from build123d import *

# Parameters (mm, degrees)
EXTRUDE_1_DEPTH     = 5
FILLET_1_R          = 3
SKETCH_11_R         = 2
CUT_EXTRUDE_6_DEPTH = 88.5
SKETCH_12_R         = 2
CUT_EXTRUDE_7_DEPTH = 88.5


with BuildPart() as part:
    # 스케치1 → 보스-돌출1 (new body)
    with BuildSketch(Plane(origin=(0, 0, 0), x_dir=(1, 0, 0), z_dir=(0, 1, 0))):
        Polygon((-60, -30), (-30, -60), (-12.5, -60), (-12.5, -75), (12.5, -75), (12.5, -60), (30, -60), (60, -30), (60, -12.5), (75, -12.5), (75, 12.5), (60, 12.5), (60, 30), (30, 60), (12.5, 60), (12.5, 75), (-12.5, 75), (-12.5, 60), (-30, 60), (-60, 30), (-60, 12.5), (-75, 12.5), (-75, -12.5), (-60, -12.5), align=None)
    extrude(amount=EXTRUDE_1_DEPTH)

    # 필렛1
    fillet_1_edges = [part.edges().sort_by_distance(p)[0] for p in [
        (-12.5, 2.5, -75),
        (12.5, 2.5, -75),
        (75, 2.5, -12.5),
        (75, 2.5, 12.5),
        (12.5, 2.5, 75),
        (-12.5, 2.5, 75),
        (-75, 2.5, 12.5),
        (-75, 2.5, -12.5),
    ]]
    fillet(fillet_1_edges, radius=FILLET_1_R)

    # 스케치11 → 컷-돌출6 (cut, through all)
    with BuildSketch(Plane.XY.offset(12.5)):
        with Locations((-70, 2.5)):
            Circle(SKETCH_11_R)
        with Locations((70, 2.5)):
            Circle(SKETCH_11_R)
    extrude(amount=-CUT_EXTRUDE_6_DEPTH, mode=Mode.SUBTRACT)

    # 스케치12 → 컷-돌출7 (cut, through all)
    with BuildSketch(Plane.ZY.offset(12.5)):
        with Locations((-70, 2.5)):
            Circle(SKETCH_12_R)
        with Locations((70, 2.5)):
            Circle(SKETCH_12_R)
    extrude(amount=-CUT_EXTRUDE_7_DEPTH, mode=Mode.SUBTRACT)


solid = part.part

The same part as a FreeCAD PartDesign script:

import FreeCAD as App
import Part
import Sketcher


def edges_at(feature, points):
    """Names of the edges that pass closest to the given points."""
    edges = feature.Shape.Edges
    near = lambda p: min(range(len(edges)), key=lambda i: edges[i].distToShape(Part.Vertex(*p))[0])
    return sorted({f"Edge{near(p) + 1}" for p in points})

doc = App.newDocument("Part")
body = doc.addObject("PartDesign::Body", "Body")

sketch1 = body.newObject("Sketcher::SketchObject", "Sketch")
sketch1.AttachmentSupport = (doc.getObject("XZ_Plane"), [""])
sketch1.MapMode = "FlatFace"
sketch1.addGeometry([
    Part.LineSegment(App.Vector(-60, 30, 0), App.Vector(-30, 60, 0)),
    Part.LineSegment(App.Vector(-30, 60, 0), App.Vector(-12, 60, 0)),
    Part.LineSegment(App.Vector(-12, 60, 0), App.Vector(-12, 75, 0)),
    Part.LineSegment(App.Vector(-12, 75, 0), App.Vector(12, 75, 0)),
    Part.LineSegment(App.Vector(12, 75, 0), App.Vector(12, 60, 0)),
    Part.LineSegment(App.Vector(12, 60, 0), App.Vector(30, 60, 0)),
    Part.LineSegment(App.Vector(30, 60, 0), App.Vector(60, 30, 0)),
    Part.LineSegment(App.Vector(60, 30, 0), App.Vector(60, 12, 0)),
    Part.LineSegment(App.Vector(60, 12, 0), App.Vector(75, 12, 0)),
    Part.LineSegment(App.Vector(75, 12, 0), App.Vector(75, -12, 0)),
    Part.LineSegment(App.Vector(75, -12, 0), App.Vector(60, -12, 0)),
    Part.LineSegment(App.Vector(60, -12, 0), App.Vector(60, -30, 0)),
    Part.LineSegment(App.Vector(60, -30, 0), App.Vector(30, -60, 0)),
    Part.LineSegment(App.Vector(30, -60, 0), App.Vector(12, -60, 0)),
    Part.LineSegment(App.Vector(12, -60, 0), App.Vector(12, -75, 0)),
    Part.LineSegment(App.Vector(12, -75, 0), App.Vector(-12, -75, 0)),
    Part.LineSegment(App.Vector(-12, -75, 0), App.Vector(-12, -60, 0)),
    Part.LineSegment(App.Vector(-12, -60, 0), App.Vector(-30, -60, 0)),
    Part.LineSegment(App.Vector(-30, -60, 0), App.Vector(-60, -30, 0)),
    Part.LineSegment(App.Vector(-60, -30, 0), App.Vector(-60, -12, 0)),
    Part.LineSegment(App.Vector(-60, -12, 0), App.Vector(-75, -12, 0)),
    Part.LineSegment(App.Vector(-75, -12, 0), App.Vector(-75, 12, 0)),
    Part.LineSegment(App.Vector(-75, 12, 0), App.Vector(-60, 12, 0)),
    Part.LineSegment(App.Vector(-60, 12, 0), App.Vector(-60, 30, 0)),
], False)
sketch1.addConstraint([
    Sketcher.Constraint("Coincident", 0, 2, 1, 1),
    Sketcher.Constraint("Coincident", 1, 2, 2, 1),
    Sketcher.Constraint("Coincident", 2, 2, 3, 1),
    Sketcher.Constraint("Coincident", 3, 2, 4, 1),
    Sketcher.Constraint("Coincident", 4, 2, 5, 1),
    Sketcher.Constraint("Coincident", 5, 2, 6, 1),
    Sketcher.Constraint("Coincident", 6, 2, 7, 1),
    Sketcher.Constraint("Coincident", 7, 2, 8, 1),
    Sketcher.Constraint("Coincident", 8, 2, 9, 1),
    Sketcher.Constraint("Coincident", 9, 2, 10, 1),
    Sketcher.Constraint("Coincident", 10, 2, 11, 1),
    Sketcher.Constraint("Coincident", 11, 2, 12, 1),
    Sketcher.Constraint("Coincident", 12, 2, 13, 1),
    Sketcher.Constraint("Coincident", 13, 2, 14, 1),
    Sketcher.Constraint("Coincident", 14, 2, 15, 1),
    Sketcher.Constraint("Coincident", 15, 2, 16, 1),
    Sketcher.Constraint("Coincident", 16, 2, 17, 1),
    Sketcher.Constraint("Coincident", 17, 2, 18, 1),
    Sketcher.Constraint("Coincident", 18, 2, 19, 1),
    Sketcher.Constraint("Coincident", 19, 2, 20, 1),
    Sketcher.Constraint("Coincident", 20, 2, 21, 1),
    Sketcher.Constraint("Coincident", 21, 2, 22, 1),
    Sketcher.Constraint("Coincident", 22, 2, 23, 1),
    Sketcher.Constraint("Coincident", 23, 2, 0, 1),
    Sketcher.Constraint("Horizontal", 1),
    Sketcher.Constraint("Vertical", 2),
    Sketcher.Constraint("Horizontal", 3),
    Sketcher.Constraint("Vertical", 4),
    Sketcher.Constraint("Horizontal", 5),
    Sketcher.Constraint("Vertical", 7),
    Sketcher.Constraint("Horizontal", 8),
    Sketcher.Constraint("Vertical", 9),
    Sketcher.Constraint("Horizontal", 10),
    Sketcher.Constraint("Vertical", 11),
    Sketcher.Constraint("Horizontal", 13),
    Sketcher.Constraint("Vertical", 14),
    Sketcher.Constraint("Horizontal", 15),
    Sketcher.Constraint("Vertical", 16),
    Sketcher.Constraint("Horizontal", 17),
    Sketcher.Constraint("Vertical", 19),
    Sketcher.Constraint("Horizontal", 20),
    Sketcher.Constraint("Vertical", 21),
    Sketcher.Constraint("Horizontal", 22),
    Sketcher.Constraint("Vertical", 23),
    Sketcher.Constraint("Symmetric", 0, 2, 12, 2, -1, 1),
    Sketcher.Constraint("Symmetric", 2, 2, 14, 2, -1, 1),
    Sketcher.Constraint("Symmetric", 4, 2, 16, 2, -1, 1),
    Sketcher.Constraint("Symmetric", 6, 2, 18, 2, -1, 1),
    Sketcher.Constraint("Symmetric", 8, 2, 20, 2, -1, 1),
    Sketcher.Constraint("Symmetric", 10, 2, 22, 2, -1, 1),
    Sketcher.Constraint("Symmetric", 1, 2, 4, 2, -2),
    Sketcher.Constraint("Symmetric", 11, 2, 18, 2, -2),
    Sketcher.Constraint("Perpendicular", 0, 6),
    Sketcher.Constraint("Perpendicular", 6, 12),
    Sketcher.Constraint("Perpendicular", 12, 18),
    Sketcher.Constraint("Horizontal", 10, 2, 19, 2),
    Sketcher.Constraint("Vertical", 5, 2, 12, 2),
    Sketcher.Constraint("Equal", 22, 2),
    Sketcher.Constraint("Equal", 17, 7),
    Sketcher.Constraint("Equal", 15, 9),
    Sketcher.Constraint("DistanceX", 3, 1, 3, 2, 25.0),
    Sketcher.Constraint("DistanceX", 8, 1, 8, 2, 15.0),
    Sketcher.Constraint("DistanceX", 1, 1, 1, 2, 17.5),
    Sketcher.Constraint("DistanceY", -1, 1, 0, 2, 60.0),
])
pad1 = body.newObject("PartDesign::Pad", "Pad")
pad1.Profile = sketch1
pad1.Length = 5
pad1.Reversed = True
doc.recompute()

fillet = body.newObject("PartDesign::Fillet", "Fillet")
fillet.Base = (pad1, edges_at(pad1, [
    (-12.5, 2.5, -75),
    (12.5, 2.5, -75),
    (75, 2.5, -12.5),
    (75, 2.5, 12.5),
    (12.5, 2.5, 75),
    (-12.5, 2.5, 75),
    (-75, 2.5, 12.5),
    (-75, 2.5, -12.5),
]))
fillet.Radius = 3

sketch2 = body.newObject("Sketcher::SketchObject", "Sketch001")
sketch2.AttachmentSupport = (doc.getObject("XY_Plane"), [""])
sketch2.MapMode = "FlatFace"
sketch2.AttachmentOffset = App.Placement(App.Vector(0, 0, 12.5), App.Rotation())
sketch2.addGeometry([
    Part.Circle(App.Vector(-70, 2.5, 0), App.Vector(0, 0, 1), 2),
    Part.Circle(App.Vector(70, 2.5, 0), App.Vector(0, 0, 1), 2),
], False)
sketch2.addConstraint([
    Sketcher.Constraint("Equal", 0, 1),
    Sketcher.Constraint("Symmetric", 0, 3, 1, 3, -2),
    Sketcher.Constraint("Diameter", 0, 4.0),
    Sketcher.Constraint("DistanceX", 0, 3, -1, 1, 70.0),
    Sketcher.Constraint("DistanceY", -1, 1, 0, 3, 2.5),
])
pocket1 = body.newObject("PartDesign::Pocket", "Pocket")
pocket1.Profile = sketch2
pocket1.Type = "ThroughAll"

sketch3 = body.newObject("Sketcher::SketchObject", "Sketch002")
sketch3.AttachmentSupport = (doc.getObject("YZ_Plane"), [""])
sketch3.MapMode = "FlatFace"
sketch3.AttachmentOffset = App.Placement(App.Vector(0, 0, -12.5), App.Rotation())
sketch3.addGeometry([
    Part.Circle(App.Vector(2.5, -70, 0), App.Vector(0, 0, 1), 2),
    Part.Circle(App.Vector(2.5, 70, 0), App.Vector(0, 0, 1), 2),
], False)
sketch3.addConstraint([
    Sketcher.Constraint("Equal", 0, 1),
    Sketcher.Constraint("Symmetric", 0, 3, 1, 3, -1),
    Sketcher.Constraint("Diameter", 0, 4.0),
    Sketcher.Constraint("DistanceY", 0, 3, -1, 1, 70.0),
    Sketcher.Constraint("DistanceX", -1, 1, 0, 3, 2.5),
])
pocket2 = body.newObject("PartDesign::Pocket", "Pocket001")
pocket2.Profile = sketch3
pocket2.Type = "ThroughAll"
pocket2.Reversed = True

doc.recompute()
